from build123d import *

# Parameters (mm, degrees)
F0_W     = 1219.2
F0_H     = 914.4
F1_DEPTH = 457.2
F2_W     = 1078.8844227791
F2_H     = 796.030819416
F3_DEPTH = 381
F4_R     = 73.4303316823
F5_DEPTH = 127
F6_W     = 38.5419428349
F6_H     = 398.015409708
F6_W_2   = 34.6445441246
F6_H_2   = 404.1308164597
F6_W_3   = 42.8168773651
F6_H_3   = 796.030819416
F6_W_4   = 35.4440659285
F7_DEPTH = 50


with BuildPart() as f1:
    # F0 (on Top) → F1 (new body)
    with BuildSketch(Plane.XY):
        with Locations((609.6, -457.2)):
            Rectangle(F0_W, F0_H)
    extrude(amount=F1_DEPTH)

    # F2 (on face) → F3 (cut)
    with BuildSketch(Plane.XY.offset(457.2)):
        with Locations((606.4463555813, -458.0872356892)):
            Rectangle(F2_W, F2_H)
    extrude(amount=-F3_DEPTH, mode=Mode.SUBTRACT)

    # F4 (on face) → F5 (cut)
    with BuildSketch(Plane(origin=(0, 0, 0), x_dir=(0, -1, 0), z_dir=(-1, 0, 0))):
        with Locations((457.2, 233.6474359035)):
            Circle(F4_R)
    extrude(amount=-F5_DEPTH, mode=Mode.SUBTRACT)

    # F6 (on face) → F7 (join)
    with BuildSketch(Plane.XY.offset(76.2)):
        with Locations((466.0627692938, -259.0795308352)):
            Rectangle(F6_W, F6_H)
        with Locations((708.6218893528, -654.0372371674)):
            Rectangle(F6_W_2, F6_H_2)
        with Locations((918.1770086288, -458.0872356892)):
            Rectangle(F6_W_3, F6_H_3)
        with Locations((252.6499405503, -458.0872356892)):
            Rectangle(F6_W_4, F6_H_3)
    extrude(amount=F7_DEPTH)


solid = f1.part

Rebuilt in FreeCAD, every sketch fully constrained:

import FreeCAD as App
import Part
import Sketcher
from FreeCAD import Vector
Q = App.Units.Quantity

doc = App.newDocument("Part")
params = doc.addObject("Spreadsheet::Sheet", "Params")
for row, (alias, value) in enumerate([
    ("sketch1_width", "48 in"),
    ("sketch1_height", "36 in"),
    ("pad1_length", "18 in"),
    ("pocket1_length", "15 in"),
    ("pocket2_length", "5 in"),
    ("pad2_length", "50 mm"),
], start=1):
    params.set(f"A{row}", alias)
    params.set(f"B{row}", "=" + value)
    params.setAlias(f"B{row}", alias)

body = doc.addObject("PartDesign::Body", "Body")

# Sketch on XY plane
sketch1 = body.newObject("Sketcher::SketchObject", "Sketch")
sketch1.AttachmentSupport = (doc.getObject("XY_Plane"), [""])
sketch1.MapMode = "FlatFace"
sketch1.addGeometry([
    Part.LineSegment(Vector(0, 0, 0), Vector(0, -914, 0)),
    Part.LineSegment(Vector(0, -914, 0), Vector(1219, -914, 0)),
    Part.LineSegment(Vector(1219, -914, 0), Vector(1219, 0, 0)),
    Part.LineSegment(Vector(1219, 0, 0), Vector(0, 0, 0)),
], False)
sketch1.addConstraint([
    Sketcher.Constraint("Coincident", 0, 2, 1, 1),
    Sketcher.Constraint("Coincident", 1, 2, 2, 1),
    Sketcher.Constraint("Coincident", 2, 2, 3, 1),
    Sketcher.Constraint("Coincident", 3, 2, 0, 1),
    Sketcher.Constraint("Vertical", 0),
    Sketcher.Constraint("Horizontal", 1),
    Sketcher.Constraint("Vertical", 2),
    Sketcher.Constraint("Horizontal", 3),
    Sketcher.Constraint("Coincident", 3, 2, -1, 1),
    Sketcher.Constraint("DistanceX", 1, 1, 1, 2, Q("48 in")),
    Sketcher.Constraint("DistanceY", 0, 2, 0, 1, Q("36 in")),
])
sketch1.setExpression("Constraints[9]", "Params.sketch1_width")
sketch1.setExpression("Constraints[10]", "Params.sketch1_height")
pad1 = body.newObject("PartDesign::Pad", "Pad")
pad1.Profile = sketch1
pad1.setExpression("Length", "Params.pad1_length")

# Sketch on XY plane
sketch2 = body.newObject("Sketcher::SketchObject", "Sketch001")
sketch2.AttachmentSupport = (doc.getObject("XY_Plane"), [""])
sketch2.MapMode = "FlatFace"
sketch2.AttachmentOffset = App.Placement(Vector(0, 0, 18 * 25.4), App.Rotation())
sketch2.addGeometry([
    Part.LineSegment(Vector(67, -60, 0), Vector(67, -856, 0)),
    Part.LineSegment(Vector(67, -856, 0), Vector(1146, -856, 0)),
    Part.LineSegment(Vector(1146, -856, 0), Vector(1146, -60, 0)),
    Part.LineSegment(Vector(1146, -60, 0), Vector(67, -60, 0)),
], False)
sketch2.addConstraint([
    Sketcher.Constraint("Coincident", 0, 2, 1, 1),
    Sketcher.Constraint("Coincident", 1, 2, 2, 1),
    Sketcher.Constraint("Coincident", 2, 2, 3, 1),
    Sketcher.Constraint("Coincident", 3, 2, 0, 1),
    Sketcher.Constraint("Vertical", 0),
    Sketcher.Constraint("Horizontal", 1),
    Sketcher.Constraint("Vertical", 2),
    Sketcher.Constraint("Horizontal", 3),
    Sketcher.Constraint("DistanceY", 0, 2, 0, 1, 796.030819),
    Sketcher.Constraint("DistanceX", 1, 1, 1, 2, 1078.884423),
    Sketcher.Constraint("DistanceX", -1, 1, 0, 2, 67.004144),
    Sketcher.Constraint("DistanceY", 0, 2, -1, 1, 856.102645),
])
pocket1 = body.newObject("PartDesign::Pocket", "Pocket")
pocket1.Profile = sketch2
pocket1.setExpression("Length", "Params.pocket1_length")

# Sketch on YZ plane
sketch3 = body.newObject("Sketcher::SketchObject", "Sketch002")
sketch3.AttachmentSupport = (doc.getObject("YZ_Plane"), [""])
sketch3.MapMode = "FlatFace"
sketch3.addGeometry(Part.Circle(Vector(-457, 234, 0), Vector(0, 0, 1), 73), False)
sketch3.addConstraint([
    Sketcher.Constraint("DistanceX", 0, 3, -1, 1, Q("18 in")),
    Sketcher.Constraint("Diameter", 0, 146.860663),
    Sketcher.Constraint("DistanceY", -1, 1, 0, 3, 233.647436),
])
pocket2 = body.newObject("PartDesign::Pocket", "Pocket001")
pocket2.Profile = sketch3
pocket2.setExpression("Length", "Params.pocket2_length")
pocket2.Reversed = True

# Sketch on XY plane
sketch4 = body.newObject("Sketcher::SketchObject", "Sketch003")
sketch4.AttachmentSupport = (doc.getObject("XY_Plane"), [""])
sketch4.MapMode = "FlatFace"
sketch4.AttachmentOffset = App.Placement(Vector(0, 0, 3 * 25.4), App.Rotation())
sketch4.addGeometry([
    Part.LineSegment(Vector(447, -60, 0), Vector(447, -458, 0)),  # 0
    Part.LineSegment(Vector(447, -458, 0), Vector(485, -458, 0)),  # 1
    Part.LineSegment(Vector(485, -458, 0), Vector(485, -60, 0)),  # 2
    Part.LineSegment(Vector(485, -60, 0), Vector(447, -60, 0)),  # 3
    Part.LineSegment(Vector(691, -452, 0), Vector(691, -856, 0)),  # 4
    Part.LineSegment(Vector(691, -856, 0), Vector(726, -856, 0)),  # 5
    Part.LineSegment(Vector(726, -856, 0), Vector(726, -452, 0)),  # 6
    Part.LineSegment(Vector(726, -452, 0), Vector(691, -452, 0)),  # 7
    Part.LineSegment(Vector(897, -60, 0), Vector(897, -856, 0)),  # 8
    Part.LineSegment(Vector(897, -856, 0), Vector(940, -856, 0)),  # 9
    Part.LineSegment(Vector(940, -856, 0), Vector(940, -60, 0)),  # 10
    Part.LineSegment(Vector(940, -60, 0), Vector(897, -60, 0)),  # 11
    Part.LineSegment(Vector(235, -60, 0), Vector(235, -856, 0)),  # 12
    Part.LineSegment(Vector(235, -856, 0), Vector(270, -856, 0)),  # 13
    Part.LineSegment(Vector(270, -856, 0), Vector(270, -60, 0)),  # 14
    Part.LineSegment(Vector(270, -60, 0), Vector(235, -60, 0)),  # 15
], False)
sketch4.addConstraint([
    Sketcher.Constraint("Coincident", 0, 2, 1, 1),
    Sketcher.Constraint("Coincident", 1, 2, 2, 1),
    Sketcher.Constraint("Coincident", 2, 2, 3, 1),
    Sketcher.Constraint("Coincident", 3, 2, 0, 1),
    Sketcher.Constraint("Coincident", 4, 2, 5, 1),
    Sketcher.Constraint("Coincident", 5, 2, 6, 1),
    Sketcher.Constraint("Coincident", 6, 2, 7, 1),
    Sketcher.Constraint("Coincident", 7, 2, 4, 1),
    Sketcher.Constraint("Coincident", 8, 2, 9, 1),
    Sketcher.Constraint("Coincident", 9, 2, 10, 1),
    Sketcher.Constraint("Coincident", 10, 2, 11, 1),
    Sketcher.Constraint("Coincident", 11, 2, 8, 1),
    Sketcher.Constraint("Coincident", 12, 2, 13, 1),
    Sketcher.Constraint("Coincident", 13, 2, 14, 1),
    Sketcher.Constraint("Coincident", 14, 2, 15, 1),
    Sketcher.Constraint("Coincident", 15, 2, 12, 1),
    Sketcher.Constraint("Vertical", 0),
    Sketcher.Constraint("Horizontal", 1),
    Sketcher.Constraint("Vertical", 2),
    Sketcher.Constraint("Horizontal", 3),
    Sketcher.Constraint("Vertical", 4),
    Sketcher.Constraint("Horizontal", 5),
    Sketcher.Constraint("Vertical", 6),
    Sketcher.Constraint("Horizontal", 7),
    Sketcher.Constraint("Vertical", 8),
    Sketcher.Constraint("Horizontal", 9),
    Sketcher.Constraint("Vertical", 10),
    Sketcher.Constraint("Horizontal", 11),
    Sketcher.Constraint("Vertical", 12),
    Sketcher.Constraint("Horizontal", 13),
    Sketcher.Constraint("Vertical", 14),
    Sketcher.Constraint("Horizontal", 15),
    Sketcher.Constraint("Horizontal", 5, 2, 8, 2),
    Sketcher.Constraint("Horizontal", 3, 2, 10, 2),
    Sketcher.Constraint("Horizontal", 9, 2, 12, 2),
    Sketcher.Constraint("Horizontal", 11, 2, 14, 2),
    Sketcher.Constraint("DistanceY", 0, 2, 0, 1, 398.01541),
    Sketcher.Constraint("DistanceY", 8, 2, 8, 1, 796.030819),
    Sketcher.Constraint("DistanceX", 1, 1, 1, 2, 38.541943),
    Sketcher.Constraint("DistanceX", 5, 1, 5, 2, 34.644544),
    Sketcher.Constraint("DistanceX", 9, 1, 9, 2, 42.816877),
    Sketcher.Constraint("DistanceX", 13, 1, 13, 2, 35.444066),
    Sketcher.Constraint("DistanceY", 4, 2, 4, 1, 404.130816),
    Sketcher.Constraint("DistanceX", -1, 1, 1, 2, 485.333741),
    Sketcher.Constraint("DistanceX", -1, 1, 5, 2, 725.944161),
    Sketcher.Constraint("DistanceY", 6, 2, -1, 1, 451.971829),
    Sketcher.Constraint("DistanceX", -1, 1, 8, 2, 896.76857),
    Sketcher.Constraint("DistanceX", 12, 2, 0, 2, 211.86389),
])
pad2 = body.newObject("PartDesign::Pad", "Pad001")
pad2.Profile = sketch4
pad2.setExpression("Length", "Params.pad2_length")

doc.recompute()
